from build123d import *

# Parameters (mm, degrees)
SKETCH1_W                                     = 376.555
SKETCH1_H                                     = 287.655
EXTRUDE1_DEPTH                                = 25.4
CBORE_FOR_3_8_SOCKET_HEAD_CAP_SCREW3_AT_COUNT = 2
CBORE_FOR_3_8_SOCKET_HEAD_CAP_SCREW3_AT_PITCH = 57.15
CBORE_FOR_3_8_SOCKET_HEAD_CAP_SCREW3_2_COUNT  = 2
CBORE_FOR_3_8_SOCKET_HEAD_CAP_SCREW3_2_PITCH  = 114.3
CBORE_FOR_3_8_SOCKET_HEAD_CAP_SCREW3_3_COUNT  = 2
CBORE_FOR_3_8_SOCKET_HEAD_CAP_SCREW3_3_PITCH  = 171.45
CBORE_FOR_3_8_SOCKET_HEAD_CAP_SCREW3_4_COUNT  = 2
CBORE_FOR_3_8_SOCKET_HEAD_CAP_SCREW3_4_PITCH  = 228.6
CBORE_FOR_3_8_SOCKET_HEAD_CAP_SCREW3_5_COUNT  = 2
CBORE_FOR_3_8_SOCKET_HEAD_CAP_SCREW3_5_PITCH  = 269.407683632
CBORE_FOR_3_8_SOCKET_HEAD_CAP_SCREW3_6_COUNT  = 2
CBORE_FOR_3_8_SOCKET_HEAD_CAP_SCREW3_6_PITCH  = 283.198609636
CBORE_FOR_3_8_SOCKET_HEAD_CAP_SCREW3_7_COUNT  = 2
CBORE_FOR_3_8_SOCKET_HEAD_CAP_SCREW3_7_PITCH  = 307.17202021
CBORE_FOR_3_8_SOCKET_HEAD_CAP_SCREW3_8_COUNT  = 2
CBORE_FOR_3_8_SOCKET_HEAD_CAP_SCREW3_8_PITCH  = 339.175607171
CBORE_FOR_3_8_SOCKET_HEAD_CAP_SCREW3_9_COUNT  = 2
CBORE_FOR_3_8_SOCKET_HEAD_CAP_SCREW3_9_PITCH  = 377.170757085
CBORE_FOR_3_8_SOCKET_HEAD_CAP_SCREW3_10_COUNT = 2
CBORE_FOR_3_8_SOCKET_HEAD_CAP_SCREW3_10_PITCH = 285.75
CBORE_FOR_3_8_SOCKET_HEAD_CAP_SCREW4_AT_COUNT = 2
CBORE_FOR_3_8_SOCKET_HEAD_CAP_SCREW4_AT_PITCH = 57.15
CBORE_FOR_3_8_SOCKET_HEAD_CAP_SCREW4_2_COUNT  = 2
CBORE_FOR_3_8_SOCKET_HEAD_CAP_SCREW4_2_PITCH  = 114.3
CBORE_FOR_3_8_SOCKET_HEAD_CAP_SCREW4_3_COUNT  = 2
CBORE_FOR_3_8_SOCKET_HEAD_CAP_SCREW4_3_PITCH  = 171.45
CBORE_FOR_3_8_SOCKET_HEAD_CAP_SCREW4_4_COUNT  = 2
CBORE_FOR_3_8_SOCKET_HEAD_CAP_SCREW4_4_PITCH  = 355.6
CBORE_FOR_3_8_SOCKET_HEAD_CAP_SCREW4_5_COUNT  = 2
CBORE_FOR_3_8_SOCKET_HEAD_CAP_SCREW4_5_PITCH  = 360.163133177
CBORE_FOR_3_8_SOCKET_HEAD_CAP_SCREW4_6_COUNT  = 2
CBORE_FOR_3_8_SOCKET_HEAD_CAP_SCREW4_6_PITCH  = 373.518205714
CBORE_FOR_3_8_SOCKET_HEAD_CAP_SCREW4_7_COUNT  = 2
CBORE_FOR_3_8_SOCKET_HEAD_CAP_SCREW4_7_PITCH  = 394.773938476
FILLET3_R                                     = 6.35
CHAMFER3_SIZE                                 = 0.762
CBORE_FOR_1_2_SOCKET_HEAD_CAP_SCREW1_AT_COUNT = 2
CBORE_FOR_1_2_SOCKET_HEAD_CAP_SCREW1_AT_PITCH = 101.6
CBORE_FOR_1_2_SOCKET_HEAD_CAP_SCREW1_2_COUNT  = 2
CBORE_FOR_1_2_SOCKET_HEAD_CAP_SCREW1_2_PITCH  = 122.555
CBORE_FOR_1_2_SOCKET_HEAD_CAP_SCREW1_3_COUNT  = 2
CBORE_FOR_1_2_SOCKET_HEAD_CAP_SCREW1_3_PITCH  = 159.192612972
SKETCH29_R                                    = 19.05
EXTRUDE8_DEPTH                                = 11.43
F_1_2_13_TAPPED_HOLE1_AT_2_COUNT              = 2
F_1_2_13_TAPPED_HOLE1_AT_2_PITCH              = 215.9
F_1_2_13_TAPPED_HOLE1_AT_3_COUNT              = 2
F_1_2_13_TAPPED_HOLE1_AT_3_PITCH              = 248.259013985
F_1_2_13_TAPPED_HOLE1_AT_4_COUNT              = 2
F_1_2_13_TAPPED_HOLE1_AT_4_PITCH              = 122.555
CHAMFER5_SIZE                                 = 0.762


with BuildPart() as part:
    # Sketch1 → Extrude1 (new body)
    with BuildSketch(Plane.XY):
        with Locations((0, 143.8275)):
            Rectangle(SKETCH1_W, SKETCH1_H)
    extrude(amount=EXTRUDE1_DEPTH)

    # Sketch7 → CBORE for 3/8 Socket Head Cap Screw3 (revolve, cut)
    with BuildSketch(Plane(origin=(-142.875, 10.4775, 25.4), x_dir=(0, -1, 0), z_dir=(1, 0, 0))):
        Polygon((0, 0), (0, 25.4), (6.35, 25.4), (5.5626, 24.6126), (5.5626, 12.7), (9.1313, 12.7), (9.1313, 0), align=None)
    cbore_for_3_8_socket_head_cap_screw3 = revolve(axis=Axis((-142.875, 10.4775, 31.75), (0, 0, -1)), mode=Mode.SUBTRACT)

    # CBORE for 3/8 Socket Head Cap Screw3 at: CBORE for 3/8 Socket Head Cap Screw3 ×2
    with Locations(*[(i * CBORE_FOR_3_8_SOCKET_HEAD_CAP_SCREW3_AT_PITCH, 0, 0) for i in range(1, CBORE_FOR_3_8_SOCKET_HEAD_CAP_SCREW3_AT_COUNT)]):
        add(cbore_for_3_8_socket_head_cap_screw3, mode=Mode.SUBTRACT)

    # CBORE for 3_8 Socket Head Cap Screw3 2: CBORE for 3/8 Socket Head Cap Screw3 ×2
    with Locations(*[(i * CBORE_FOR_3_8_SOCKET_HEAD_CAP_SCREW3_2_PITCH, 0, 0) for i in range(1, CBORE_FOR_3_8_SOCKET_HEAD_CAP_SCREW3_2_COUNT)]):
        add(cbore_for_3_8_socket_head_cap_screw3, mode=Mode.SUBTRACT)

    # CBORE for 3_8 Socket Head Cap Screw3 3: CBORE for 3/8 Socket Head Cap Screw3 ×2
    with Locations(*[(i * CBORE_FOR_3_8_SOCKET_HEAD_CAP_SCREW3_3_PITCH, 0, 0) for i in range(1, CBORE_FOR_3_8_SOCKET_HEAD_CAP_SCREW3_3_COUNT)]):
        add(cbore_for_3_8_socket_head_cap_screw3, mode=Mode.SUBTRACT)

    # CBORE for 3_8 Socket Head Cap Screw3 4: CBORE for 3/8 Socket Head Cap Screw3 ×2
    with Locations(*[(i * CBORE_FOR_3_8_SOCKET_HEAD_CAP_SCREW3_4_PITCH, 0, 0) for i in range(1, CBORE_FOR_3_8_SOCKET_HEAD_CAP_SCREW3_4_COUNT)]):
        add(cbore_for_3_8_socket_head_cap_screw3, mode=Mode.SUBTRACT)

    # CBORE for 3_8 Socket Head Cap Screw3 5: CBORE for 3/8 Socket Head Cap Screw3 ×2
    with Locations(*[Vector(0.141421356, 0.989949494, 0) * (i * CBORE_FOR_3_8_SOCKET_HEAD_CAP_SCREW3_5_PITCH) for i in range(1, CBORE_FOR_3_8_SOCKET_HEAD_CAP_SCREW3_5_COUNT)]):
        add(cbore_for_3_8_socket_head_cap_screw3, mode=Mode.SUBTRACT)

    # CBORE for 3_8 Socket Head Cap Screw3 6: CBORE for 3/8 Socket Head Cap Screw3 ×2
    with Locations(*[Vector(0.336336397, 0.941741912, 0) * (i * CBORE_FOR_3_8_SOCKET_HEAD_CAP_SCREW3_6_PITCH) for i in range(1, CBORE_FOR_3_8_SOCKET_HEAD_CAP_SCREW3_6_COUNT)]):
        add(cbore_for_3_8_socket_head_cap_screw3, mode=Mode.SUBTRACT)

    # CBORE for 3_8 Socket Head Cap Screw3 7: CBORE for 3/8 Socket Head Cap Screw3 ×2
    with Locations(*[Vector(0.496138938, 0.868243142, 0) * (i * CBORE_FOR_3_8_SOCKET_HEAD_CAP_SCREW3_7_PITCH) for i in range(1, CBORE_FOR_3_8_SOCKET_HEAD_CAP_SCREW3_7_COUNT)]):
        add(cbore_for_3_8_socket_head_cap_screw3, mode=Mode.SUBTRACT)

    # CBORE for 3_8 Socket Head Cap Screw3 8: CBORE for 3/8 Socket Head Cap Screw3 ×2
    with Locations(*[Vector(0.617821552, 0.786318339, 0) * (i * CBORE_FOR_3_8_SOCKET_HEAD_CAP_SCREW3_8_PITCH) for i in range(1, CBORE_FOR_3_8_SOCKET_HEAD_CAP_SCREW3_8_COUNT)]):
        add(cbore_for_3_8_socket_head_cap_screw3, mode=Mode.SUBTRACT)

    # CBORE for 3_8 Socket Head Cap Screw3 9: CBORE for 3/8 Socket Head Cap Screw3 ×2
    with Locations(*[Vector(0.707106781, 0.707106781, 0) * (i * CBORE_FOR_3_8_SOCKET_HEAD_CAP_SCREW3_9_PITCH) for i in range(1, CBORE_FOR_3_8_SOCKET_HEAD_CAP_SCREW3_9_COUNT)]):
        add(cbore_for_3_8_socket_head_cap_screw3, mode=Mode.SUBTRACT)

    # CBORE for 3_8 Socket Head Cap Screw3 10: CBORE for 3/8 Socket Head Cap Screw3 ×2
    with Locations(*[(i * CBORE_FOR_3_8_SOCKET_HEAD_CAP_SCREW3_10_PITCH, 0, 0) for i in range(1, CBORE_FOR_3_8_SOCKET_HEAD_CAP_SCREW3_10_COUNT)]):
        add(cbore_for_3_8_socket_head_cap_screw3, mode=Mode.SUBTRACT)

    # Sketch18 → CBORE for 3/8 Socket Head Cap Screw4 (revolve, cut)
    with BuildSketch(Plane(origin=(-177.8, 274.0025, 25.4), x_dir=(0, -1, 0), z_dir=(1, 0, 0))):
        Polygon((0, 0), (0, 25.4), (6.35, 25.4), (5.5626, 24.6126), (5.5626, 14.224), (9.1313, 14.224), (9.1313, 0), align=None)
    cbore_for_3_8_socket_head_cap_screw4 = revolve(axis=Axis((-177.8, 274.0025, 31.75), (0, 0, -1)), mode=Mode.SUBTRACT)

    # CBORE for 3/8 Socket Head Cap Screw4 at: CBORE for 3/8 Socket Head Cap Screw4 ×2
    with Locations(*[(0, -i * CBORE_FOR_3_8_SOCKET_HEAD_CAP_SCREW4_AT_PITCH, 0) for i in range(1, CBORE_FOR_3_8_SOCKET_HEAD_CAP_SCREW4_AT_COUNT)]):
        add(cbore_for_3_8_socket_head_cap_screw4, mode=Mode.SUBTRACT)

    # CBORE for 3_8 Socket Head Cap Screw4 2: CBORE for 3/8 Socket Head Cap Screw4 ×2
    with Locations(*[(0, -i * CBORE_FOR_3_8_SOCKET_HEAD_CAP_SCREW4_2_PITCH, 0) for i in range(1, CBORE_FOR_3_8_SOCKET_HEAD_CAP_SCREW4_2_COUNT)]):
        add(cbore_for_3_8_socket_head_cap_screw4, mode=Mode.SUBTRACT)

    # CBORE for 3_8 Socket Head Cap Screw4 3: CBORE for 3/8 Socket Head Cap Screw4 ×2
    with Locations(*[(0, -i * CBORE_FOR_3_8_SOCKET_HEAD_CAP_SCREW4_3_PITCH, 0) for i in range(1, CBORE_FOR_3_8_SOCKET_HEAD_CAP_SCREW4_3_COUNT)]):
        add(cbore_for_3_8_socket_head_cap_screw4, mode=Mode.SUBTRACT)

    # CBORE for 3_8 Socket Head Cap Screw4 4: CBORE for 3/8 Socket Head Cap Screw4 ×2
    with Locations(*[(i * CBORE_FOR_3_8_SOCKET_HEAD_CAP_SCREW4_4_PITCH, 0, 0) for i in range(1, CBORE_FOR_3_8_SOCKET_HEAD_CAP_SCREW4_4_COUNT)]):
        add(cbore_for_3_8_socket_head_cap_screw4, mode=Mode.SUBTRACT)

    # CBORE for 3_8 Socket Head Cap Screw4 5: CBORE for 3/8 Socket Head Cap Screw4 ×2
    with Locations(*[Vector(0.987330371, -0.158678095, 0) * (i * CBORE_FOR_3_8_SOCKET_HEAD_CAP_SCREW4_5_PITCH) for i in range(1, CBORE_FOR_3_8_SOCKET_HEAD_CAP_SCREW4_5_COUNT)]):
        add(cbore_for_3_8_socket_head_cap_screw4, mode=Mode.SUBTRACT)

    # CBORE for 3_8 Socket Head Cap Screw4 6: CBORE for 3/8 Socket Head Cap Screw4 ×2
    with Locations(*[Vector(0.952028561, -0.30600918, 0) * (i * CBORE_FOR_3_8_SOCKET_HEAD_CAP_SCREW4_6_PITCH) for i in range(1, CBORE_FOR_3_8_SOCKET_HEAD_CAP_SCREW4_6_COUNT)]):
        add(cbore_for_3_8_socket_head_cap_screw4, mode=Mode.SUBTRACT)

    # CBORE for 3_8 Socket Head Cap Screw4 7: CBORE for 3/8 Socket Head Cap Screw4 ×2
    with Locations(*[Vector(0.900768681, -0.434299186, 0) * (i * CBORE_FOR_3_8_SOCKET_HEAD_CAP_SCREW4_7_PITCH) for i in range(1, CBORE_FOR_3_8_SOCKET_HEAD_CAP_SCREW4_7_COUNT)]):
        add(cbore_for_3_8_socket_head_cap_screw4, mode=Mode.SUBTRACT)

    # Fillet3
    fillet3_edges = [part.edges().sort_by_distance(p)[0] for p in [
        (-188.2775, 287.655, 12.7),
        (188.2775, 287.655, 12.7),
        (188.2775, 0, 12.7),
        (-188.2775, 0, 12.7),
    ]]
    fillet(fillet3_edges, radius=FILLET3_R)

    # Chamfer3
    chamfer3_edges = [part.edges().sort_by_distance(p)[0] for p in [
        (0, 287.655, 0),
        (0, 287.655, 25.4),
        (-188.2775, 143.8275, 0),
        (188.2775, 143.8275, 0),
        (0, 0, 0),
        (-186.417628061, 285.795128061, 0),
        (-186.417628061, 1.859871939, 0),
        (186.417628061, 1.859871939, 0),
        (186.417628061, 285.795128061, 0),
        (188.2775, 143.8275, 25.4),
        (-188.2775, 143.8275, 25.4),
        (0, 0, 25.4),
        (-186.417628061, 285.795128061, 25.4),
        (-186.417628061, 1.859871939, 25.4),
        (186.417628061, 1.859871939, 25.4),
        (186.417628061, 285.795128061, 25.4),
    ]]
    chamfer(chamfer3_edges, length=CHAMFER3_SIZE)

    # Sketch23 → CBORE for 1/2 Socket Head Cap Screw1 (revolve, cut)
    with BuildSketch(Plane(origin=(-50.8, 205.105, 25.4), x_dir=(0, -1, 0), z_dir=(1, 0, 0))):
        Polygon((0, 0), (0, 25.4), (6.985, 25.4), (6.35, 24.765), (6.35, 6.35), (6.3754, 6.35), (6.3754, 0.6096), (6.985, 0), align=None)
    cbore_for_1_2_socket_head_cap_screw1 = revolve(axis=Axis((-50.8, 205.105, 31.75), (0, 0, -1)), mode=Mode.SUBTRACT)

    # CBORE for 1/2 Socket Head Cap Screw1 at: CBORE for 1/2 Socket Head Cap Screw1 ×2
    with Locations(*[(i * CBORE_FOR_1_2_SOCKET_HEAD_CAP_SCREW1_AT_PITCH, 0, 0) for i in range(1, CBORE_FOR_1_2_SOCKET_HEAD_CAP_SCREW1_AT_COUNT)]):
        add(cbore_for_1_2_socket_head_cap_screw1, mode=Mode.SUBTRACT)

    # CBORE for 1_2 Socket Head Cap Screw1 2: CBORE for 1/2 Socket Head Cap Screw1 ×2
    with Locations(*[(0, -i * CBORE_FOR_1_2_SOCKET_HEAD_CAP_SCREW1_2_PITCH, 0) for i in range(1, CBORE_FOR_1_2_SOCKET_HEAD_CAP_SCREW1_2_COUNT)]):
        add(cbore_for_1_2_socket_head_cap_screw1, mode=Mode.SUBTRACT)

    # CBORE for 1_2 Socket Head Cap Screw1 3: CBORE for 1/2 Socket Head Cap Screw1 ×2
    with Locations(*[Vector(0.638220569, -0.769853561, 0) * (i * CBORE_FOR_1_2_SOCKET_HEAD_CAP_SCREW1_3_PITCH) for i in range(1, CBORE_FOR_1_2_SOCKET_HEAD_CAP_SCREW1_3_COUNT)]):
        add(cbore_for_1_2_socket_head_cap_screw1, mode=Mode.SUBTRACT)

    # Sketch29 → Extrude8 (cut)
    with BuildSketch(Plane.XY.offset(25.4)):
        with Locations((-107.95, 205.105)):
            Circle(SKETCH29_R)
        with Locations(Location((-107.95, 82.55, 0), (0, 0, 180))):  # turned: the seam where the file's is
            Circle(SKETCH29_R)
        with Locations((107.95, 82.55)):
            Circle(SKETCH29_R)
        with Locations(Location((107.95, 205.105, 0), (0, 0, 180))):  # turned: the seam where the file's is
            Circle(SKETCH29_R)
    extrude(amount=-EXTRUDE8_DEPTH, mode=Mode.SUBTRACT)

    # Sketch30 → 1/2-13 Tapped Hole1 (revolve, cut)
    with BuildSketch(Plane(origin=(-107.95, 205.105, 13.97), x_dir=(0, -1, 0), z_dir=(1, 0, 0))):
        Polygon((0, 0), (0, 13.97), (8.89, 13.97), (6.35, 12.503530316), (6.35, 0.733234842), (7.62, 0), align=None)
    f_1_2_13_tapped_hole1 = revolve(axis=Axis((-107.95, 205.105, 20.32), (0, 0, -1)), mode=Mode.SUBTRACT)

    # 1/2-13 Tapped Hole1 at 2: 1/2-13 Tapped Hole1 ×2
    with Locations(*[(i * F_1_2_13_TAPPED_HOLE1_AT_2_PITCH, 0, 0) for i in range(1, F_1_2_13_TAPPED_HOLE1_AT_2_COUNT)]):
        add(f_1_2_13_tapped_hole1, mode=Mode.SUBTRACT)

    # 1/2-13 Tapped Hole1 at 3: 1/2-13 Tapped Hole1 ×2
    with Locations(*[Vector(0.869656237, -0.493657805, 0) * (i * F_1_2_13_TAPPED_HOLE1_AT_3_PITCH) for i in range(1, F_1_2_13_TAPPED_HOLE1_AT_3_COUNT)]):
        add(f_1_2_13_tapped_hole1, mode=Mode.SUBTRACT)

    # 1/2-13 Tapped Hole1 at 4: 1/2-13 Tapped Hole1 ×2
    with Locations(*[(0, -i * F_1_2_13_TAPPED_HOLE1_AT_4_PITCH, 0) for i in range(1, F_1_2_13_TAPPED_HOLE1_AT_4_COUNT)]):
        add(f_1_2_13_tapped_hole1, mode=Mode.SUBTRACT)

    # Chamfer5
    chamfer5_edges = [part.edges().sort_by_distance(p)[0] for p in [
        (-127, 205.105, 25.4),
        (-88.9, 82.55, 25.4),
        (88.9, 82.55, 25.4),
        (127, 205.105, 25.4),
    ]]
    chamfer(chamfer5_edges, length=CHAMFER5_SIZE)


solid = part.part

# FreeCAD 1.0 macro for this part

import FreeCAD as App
import Part
import Sketcher
from FreeCAD import Vector
Q = App.Units.Quantity


def edges_at(feature, points):
    """Names of the edges that pass closest to the given points."""
    edges = feature.Shape.Edges
    near = lambda p: min(range(len(edges)), key=lambda i: edges[i].distToShape(Part.Vertex(*p))[0])
    return sorted({f"Edge{near(p) + 1}" for p in points})

doc = App.newDocument("Part")
body = doc.addObject("PartDesign::Body", "Body")

# Sketch on XY plane
sketch1 = doc.addObject("Sketcher::SketchObject", "Sketch")
body.addObject(sketch1)
sketch1.AttachmentSupport = (doc.XY_Plane, [""])
sketch1.MapMode = "FlatFace"
sketch1.addGeometry(Part.LineSegment(Vector(-188.2775, 287.655, 0), Vector(-188.2775, 0, 0)), False)
sketch1.addGeometry(Part.LineSegment(Vector(-188.2775, 0, 0), Vector(188.2775, 0, 0)), False)
sketch1.addGeometry(Part.LineSegment(Vector(188.2775, 0, 0), Vector(188.2775, 287.655, 0)), False)
sketch1.addGeometry(Part.LineSegment(Vector(188.2775, 287.655, 0), Vector(-188.2775, 287.655, 0)), False)
sketch1.addConstraint(Sketcher.Constraint("Coincident", 0, 2, 1, 1))
sketch1.addConstraint(Sketcher.Constraint("Coincident", 1, 2, 2, 1))
sketch1.addConstraint(Sketcher.Constraint("Coincident", 2, 2, 3, 1))
sketch1.addConstraint(Sketcher.Constraint("Coincident", 3, 2, 0, 1))
sketch1.addConstraint(Sketcher.Constraint("Vertical", 0))
sketch1.addConstraint(Sketcher.Constraint("Horizontal", 1))
sketch1.addConstraint(Sketcher.Constraint("Vertical", 2))
sketch1.addConstraint(Sketcher.Constraint("Horizontal", 3))
sketch1.addConstraint(Sketcher.Constraint("Symmetric", 0, 2, 1, 2, -1, 1))
sketch1.addConstraint(Sketcher.Constraint("DistanceX", 1, 1, 1, 2, Q("14.825 in")))
sketch1.addConstraint(Sketcher.Constraint("DistanceY", 0, 2, 0, 1, Q("11.325 in")))
pad1 = doc.addObject("PartDesign::Pad", "Pad")
body.addObject(pad1)
pad1.Profile = sketch1
pad1.Length = Q("1 in")

# Sketch on YZ plane
sketch2 = doc.addObject("Sketcher::SketchObject", "Sketch001")
body.addObject(sketch2)
sketch2.AttachmentSupport = (doc.YZ_Plane, [""])
sketch2.MapMode = "FlatFace"
sketch2.AttachmentOffset = App.Placement(Vector(0, 0, -5.625 * 25.4), App.Rotation())
sketch2.addGeometry(Part.LineSegment(Vector(10.4775, 0, 0), Vector(10.4775, 25.4, 0)), False)
sketch2.addGeometry(Part.LineSegment(Vector(10.4775, 25.4, 0), Vector(1.3462, 25.4, 0)), False)
sketch2.addGeometry(Part.LineSegment(Vector(1.3462, 25.4, 0), Vector(1.3462, 12.7, 0)), False)
sketch2.addGeometry(Part.LineSegment(Vector(1.3462, 12.7, 0), Vector(4.9149, 12.7, 0)), False)
sketch2.addGeometry(Part.LineSegment(Vector(4.9149, 12.7, 0), Vector(4.9149, 0.7874, 0)), False)
sketch2.addGeometry(Part.LineSegment(Vector(4.9149, 0.7874, 0), Vector(4.1275, 0, 0)), False)
sketch2.addGeometry(Part.LineSegment(Vector(4.1275, 0, 0), Vector(10.4775, 0, 0)), False)
sketch2.addGeometry(Part.LineSegment(Vector(10.4775, 25.4, 0), Vector(10.4775, 0, 0)), True)  # axis
sketch2.addConstraint(Sketcher.Constraint("Coincident", 0, 2, 1, 1))
sketch2.addConstraint(Sketcher.Constraint("Coincident", 1, 2, 2, 1))
sketch2.addConstraint(Sketcher.Constraint("Coincident", 2, 2, 3, 1))
sketch2.addConstraint(Sketcher.Constraint("Coincident", 3, 2, 4, 1))
sketch2.addConstraint(Sketcher.Constraint("Coincident", 4, 2, 5, 1))
sketch2.addConstraint(Sketcher.Constraint("Coincident", 5, 2, 6, 1))
sketch2.addConstraint(Sketcher.Constraint("Coincident", 6, 2, 0, 1))
sketch2.addConstraint(Sketcher.Constraint("Vertical", 0))
sketch2.addConstraint(Sketcher.Constraint("Horizontal", 1))
sketch2.addConstraint(Sketcher.Constraint("Vertical", 2))
sketch2.addConstraint(Sketcher.Constraint("Horizontal", 3))
sketch2.addConstraint(Sketcher.Constraint("Vertical", 4))
sketch2.addConstraint(Sketcher.Constraint("Horizontal", 6))
sketch2.addConstraint(Sketcher.Constraint("Vertical", 7))
sketch2.addConstraint(Sketcher.Constraint("Coincident", 7, 1, 0, 2))
sketch2.addConstraint(Sketcher.Constraint("PointOnObject", 5, 2, -1))
sketch2.addConstraint(Sketcher.Constraint("PointOnObject", 7, 2, -1))
sketch2.addConstraint(Sketcher.Constraint("DistanceY", 0, 1, 0, 2, Q("1 in")))
sketch2.addConstraint(Sketcher.Constraint("DistanceY", 2, 2, 2, 1, Q("0.5 in")))
sketch2.addConstraint(Sketcher.Constraint("Angle", 5, Q("-135 deg")))
sketch2.addConstraint(Sketcher.Constraint("DistanceX", 6, 1, 6, 2, Q("0.25 in")))
sketch2.addConstraint(Sketcher.Constraint("DistanceY", 4, 2, 4, 1, Q("0.469 in")))
sketch2.addConstraint(Sketcher.Constraint("DistanceX", 1, 2, 1, 1, Q("0.3595 in")))
sketch2.addConstraint(Sketcher.Constraint("DistanceX", -1, 1, 1, 2, Q("0.053 in")))
groove = doc.addObject("PartDesign::Groove", "Groove")
body.addObject(groove)
groove.Profile = sketch2
groove.ReferenceAxis = (sketch2, ["Axis0"])
groove.Angle = 360
doc.recompute()

linearpattern = doc.addObject("PartDesign::LinearPattern", "LinearPattern")
body.addObject(linearpattern)
linearpattern.Originals = [groove]
linearpattern.Direction = (doc.X_Axis, [""])
linearpattern.Mode = "offset"
linearpattern.Offset = Q("2.25 in")
linearpattern.Occurrences = 2
body.Tip = linearpattern
doc.recompute()

linearpattern2 = doc.addObject("PartDesign::LinearPattern", "LinearPattern001")
body.addObject(linearpattern2)
linearpattern2.Originals = [groove]
linearpattern2.Direction = (doc.X_Axis, [""])
linearpattern2.Mode = "offset"
linearpattern2.Offset = Q("4.5 in")
linearpattern2.Occurrences = 2
body.Tip = linearpattern2
doc.recompute()

linearpattern3 = doc.addObject("PartDesign::LinearPattern", "LinearPattern002")
body.addObject(linearpattern3)
linearpattern3.Originals = [groove]
linearpattern3.Direction = (doc.X_Axis, [""])
linearpattern3.Mode = "offset"
linearpattern3.Offset = Q("6.75 in")
linearpattern3.Occurrences = 2
body.Tip = linearpattern3
doc.recompute()

linearpattern4 = doc.addObject("PartDesign::LinearPattern", "LinearPattern003")
body.addObject(linearpattern4)
linearpattern4.Originals = [groove]
linearpattern4.Direction = (doc.X_Axis, [""])
linearpattern4.Mode = "offset"
linearpattern4.Offset = Q("9 in")
linearpattern4.Occurrences = 2
body.Tip = linearpattern4
doc.recompute()

datumline = doc.addObject("PartDesign::Line", "DatumLine")
body.addObject(datumline)
datumline.Placement = App.Placement(Vector(0, 0, 0), App.Rotation(Vector(0, 0, 1), Vector(0.141421356, 0.989949494, 0)))
linearpattern5 = doc.addObject("PartDesign::LinearPattern", "LinearPattern004")
body.addObject(linearpattern5)
linearpattern5.Originals = [groove]
linearpattern5.Direction = (datumline, [""])
linearpattern5.Mode = "offset"
linearpattern5.Offset = 269.407684
linearpattern5.Occurrences = 2
body.Tip = linearpattern5
doc.recompute()

datumline2 = doc.addObject("PartDesign::Line", "DatumLine001")
body.addObject(datumline2)
datumline2.Placement = App.Placement(Vector(0, 0, 0), App.Rotation(Vector(0, 0, 1), Vector(0.336336397, 0.941741912, 0)))
linearpattern6 = doc.addObject("PartDesign::LinearPattern", "LinearPattern005")
body.addObject(linearpattern6)
linearpattern6.Originals = [groove]
linearpattern6.Direction = (datumline2, [""])
linearpattern6.Mode = "offset"
linearpattern6.Offset = 283.19861
linearpattern6.Occurrences = 2
body.Tip = linearpattern6
doc.recompute()

datumline3 = doc.addObject("PartDesign::Line", "DatumLine002")
body.addObject(datumline3)
datumline3.Placement = App.Placement(Vector(0, 0, 0), App.Rotation(Vector(0, 0, 1), Vector(0.496138938, 0.868243142, 0)))
linearpattern7 = doc.addObject("PartDesign::LinearPattern", "LinearPattern006")
body.addObject(linearpattern7)
linearpattern7.Originals = [groove]
linearpattern7.Direction = (datumline3, [""])
linearpattern7.Mode = "offset"
linearpattern7.Offset = 307.17202
linearpattern7.Occurrences = 2
body.Tip = linearpattern7
doc.recompute()

datumline4 = doc.addObject("PartDesign::Line", "DatumLine003")
body.addObject(datumline4)
datumline4.Placement = App.Placement(Vector(0, 0, 0), App.Rotation(Vector(0, 0, 1), Vector(0.617821552, 0.786318339, 0)))
linearpattern8 = doc.addObject("PartDesign::LinearPattern", "LinearPattern007")
body.addObject(linearpattern8)
linearpattern8.Originals = [groove]
linearpattern8.Direction = (datumline4, [""])
linearpattern8.Mode = "offset"
linearpattern8.Offset = 339.175607
linearpattern8.Occurrences = 2
body.Tip = linearpattern8
doc.recompute()

datumline5 = doc.addObject("PartDesign::Line", "DatumLine004")
body.addObject(datumline5)
datumline5.Placement = App.Placement(Vector(0, 0, 0), App.Rotation(Vector(0, 0, 1), Vector(0.707106781, 0.707106781, 0)))
linearpattern9 = doc.addObject("PartDesign::LinearPattern", "LinearPattern008")
body.addObject(linearpattern9)
linearpattern9.Originals = [groove]
linearpattern9.Direction = (datumline5, [""])
linearpattern9.Mode = "offset"
linearpattern9.Offset = 377.170757
linearpattern9.Occurrences = 2
body.Tip = linearpattern9
doc.recompute()

linearpattern10 = doc.addObject("PartDesign::LinearPattern", "LinearPattern009")
body.addObject(linearpattern10)
linearpattern10.Originals = [groove]
linearpattern10.Direction = (doc.X_Axis, [""])
linearpattern10.Mode = "offset"
linearpattern10.Offset = Q("11.25 in")
linearpattern10.Occurrences = 2
body.Tip = linearpattern10

# Sketch on YZ plane
sketch3 = doc.addObject("Sketcher::SketchObject", "Sketch002")
body.addObject(sketch3)
sketch3.AttachmentSupport = (doc.YZ_Plane, [""])
sketch3.MapMode = "FlatFace"
sketch3.AttachmentOffset = App.Placement(Vector(0, 0, -7 * 25.4), App.Rotation())
sketch3.addGeometry(Part.LineSegment(Vector(274.0025, 0, 0), Vector(274.0025, 25.4, 0)), False)
sketch3.addGeometry(Part.LineSegment(Vector(274.0025, 25.4, 0), Vector(264.8712, 25.4, 0)), False)
sketch3.addGeometry(Part.LineSegment(Vector(264.8712, 25.4, 0), Vector(264.8712, 11.176, 0)), False)
sketch3.addGeometry(Part.LineSegment(Vector(264.8712, 11.176, 0), Vector(268.4399, 11.176, 0)), False)
sketch3.addGeometry(Part.LineSegment(Vector(268.4399, 11.176, 0), Vector(268.4399, 0.7874, 0)), False)
sketch3.addGeometry(Part.LineSegment(Vector(268.4399, 0.7874, 0), Vector(267.6525, 0, 0)), False)
sketch3.addGeometry(Part.LineSegment(Vector(267.6525, 0, 0), Vector(274.0025, 0, 0)), False)
sketch3.addGeometry(Part.LineSegment(Vector(274.0025, 25.4, 0), Vector(274.0025, 0, 0)), True)  # axis
sketch3.addConstraint(Sketcher.Constraint("Coincident", 0, 2, 1, 1))
sketch3.addConstraint(Sketcher.Constraint("Coincident", 1, 2, 2, 1))
sketch3.addConstraint(Sketcher.Constraint("Coincident", 2, 2, 3, 1))
sketch3.addConstraint(Sketcher.Constraint("Coincident", 3, 2, 4, 1))
sketch3.addConstraint(Sketcher.Constraint("Coincident", 4, 2, 5, 1))
sketch3.addConstraint(Sketcher.Constraint("Coincident", 5, 2, 6, 1))
sketch3.addConstraint(Sketcher.Constraint("Coincident", 6, 2, 0, 1))
sketch3.addConstraint(Sketcher.Constraint("Vertical", 0))
sketch3.addConstraint(Sketcher.Constraint("Horizontal", 1))
sketch3.addConstraint(Sketcher.Constraint("Vertical", 2))
sketch3.addConstraint(Sketcher.Constraint("Horizontal", 3))
sketch3.addConstraint(Sketcher.Constraint("Vertical", 4))
sketch3.addConstraint(Sketcher.Constraint("Horizontal", 6))
sketch3.addConstraint(Sketcher.Constraint("Vertical", 7))
sketch3.addConstraint(Sketcher.Constraint("Coincident", 7, 1, 0, 2))
sketch3.addConstraint(Sketcher.Constraint("PointOnObject", 5, 2, -1))
sketch3.addConstraint(Sketcher.Constraint("PointOnObject", 7, 2, -1))
sketch3.addConstraint(Sketcher.Constraint("DistanceY", 0, 1, 0, 2, Q("1 in")))
sketch3.addConstraint(Sketcher.Constraint("Angle", 5, Q("-135 deg")))
sketch3.addConstraint(Sketcher.Constraint("DistanceX", 6, 1, 6, 2, Q("0.25 in")))
sketch3.addConstraint(Sketcher.Constraint("DistanceY", 2, 2, 2, 1, Q("0.56 in")))
sketch3.addConstraint(Sketcher.Constraint("DistanceY", 4, 2, 4, 1, Q("0.409 in")))
sketch3.addConstraint(Sketcher.Constraint("DistanceX", 1, 2, 1, 1, Q("0.3595 in")))
sketch3.addConstraint(Sketcher.Constraint("DistanceX", -1, 1, 1, 2, Q("10.428 in")))
groove2 = doc.addObject("PartDesign::Groove", "Groove001")
body.addObject(groove2)
groove2.Profile = sketch3
groove2.ReferenceAxis = (sketch3, ["Axis0"])
groove2.Angle = 360
doc.recompute()

linearpattern11 = doc.addObject("PartDesign::LinearPattern", "LinearPattern010")
body.addObject(linearpattern11)
linearpattern11.Originals = [groove2]
linearpattern11.Direction = (doc.Y_Axis, [""])
linearpattern11.Mode = "offset"
linearpattern11.Offset = Q("2.25 in")
linearpattern11.Occurrences = 2
linearpattern11.Reversed = True
body.Tip = linearpattern11
doc.recompute()

linearpattern12 = doc.addObject("PartDesign::LinearPattern", "LinearPattern011")
body.addObject(linearpattern12)
linearpattern12.Originals = [groove2]
linearpattern12.Direction = (doc.Y_Axis, [""])
linearpattern12.Mode = "offset"
linearpattern12.Offset = Q("4.5 in")
linearpattern12.Occurrences = 2
linearpattern12.Reversed = True
body.Tip = linearpattern12
doc.recompute()

linearpattern13 = doc.addObject("PartDesign::LinearPattern", "LinearPattern012")
body.addObject(linearpattern13)
linearpattern13.Originals = [groove2]
linearpattern13.Direction = (doc.Y_Axis, [""])
linearpattern13.Mode = "offset"
linearpattern13.Offset = Q("6.75 in")
linearpattern13.Occurrences = 2
linearpattern13.Reversed = True
body.Tip = linearpattern13
doc.recompute()

linearpattern14 = doc.addObject("PartDesign::LinearPattern", "LinearPattern013")
body.addObject(linearpattern14)
linearpattern14.Originals = [groove2]
linearpattern14.Direction = (doc.X_Axis, [""])
linearpattern14.Mode = "offset"
linearpattern14.Offset = Q("14 in")
linearpattern14.Occurrences = 2
body.Tip = linearpattern14
doc.recompute()

datumline6 = doc.addObject("PartDesign::Line", "DatumLine005")
body.addObject(datumline6)
datumline6.Placement = App.Placement(Vector(0, 0, 0), App.Rotation(Vector(0, 0, 1), Vector(0.987330371, -0.158678095, 0)))
linearpattern15 = doc.addObject("PartDesign::LinearPattern", "LinearPattern014")
body.addObject(linearpattern15)
linearpattern15.Originals = [groove2]
linearpattern15.Direction = (datumline6, [""])
linearpattern15.Mode = "offset"
linearpattern15.Offset = 360.163133
linearpattern15.Occurrences = 2
body.Tip = linearpattern15
doc.recompute()

datumline7 = doc.addObject("PartDesign::Line", "DatumLine006")
body.addObject(datumline7)
datumline7.Placement = App.Placement(Vector(0, 0, 0), App.Rotation(Vector(0, 0, 1), Vector(0.952028561, -0.30600918, 0)))
linearpattern16 = doc.addObject("PartDesign::LinearPattern", "LinearPattern015")
body.addObject(linearpattern16)
linearpattern16.Originals = [groove2]
linearpattern16.Direction = (datumline7, [""])
linearpattern16.Mode = "offset"
linearpattern16.Offset = 373.518206
linearpattern16.Occurrences = 2
body.Tip = linearpattern16
doc.recompute()

datumline8 = doc.addObject("PartDesign::Line", "DatumLine007")
body.addObject(datumline8)
datumline8.Placement = App.Placement(Vector(0, 0, 0), App.Rotation(Vector(0, 0, 1), Vector(0.900768681, -0.434299186, 0)))
linearpattern17 = doc.addObject("PartDesign::LinearPattern", "LinearPattern016")
body.addObject(linearpattern17)
linearpattern17.Originals = [groove2]
linearpattern17.Direction = (datumline8, [""])
linearpattern17.Mode = "offset"
linearpattern17.Offset = 394.773938
linearpattern17.Occurrences = 2
body.Tip = linearpattern17
doc.recompute()

fillet = doc.addObject("PartDesign::Fillet", "Fillet")
body.addObject(fillet)
fillet.Base = (linearpattern17, edges_at(linearpattern17, [
    (-188.278, 287.655, 12.7),
    (188.278, 287.655, 12.7),
    (188.278, 0, 12.7),
    (-188.278, 0, 12.7),
]))
fillet.Radius = Q("0.25 in")
doc.recompute()

chamfer = doc.addObject("PartDesign::Chamfer", "Chamfer")
body.addObject(chamfer)
chamfer.Base = (fillet, edges_at(fillet, [
    (0, 287.655, 0),
    (0, 287.655, 25.4),
    (-188.278, 143.827, 0),
    (188.278, 143.827, 0),
    (0, 0, 0),
    (-186.418, 285.795, 0),
    (-186.418, 1.86, 0),
    (186.418, 1.86, 0),
    (186.418, 285.795, 0),
    (188.278, 143.827, 25.4),
    (-188.278, 143.827, 25.4),
    (0, 0, 25.4),
    (-186.418, 285.795, 25.4),
    (-186.418, 1.86, 25.4),
    (186.418, 1.86, 25.4),
    (186.418, 285.795, 25.4),
]))
chamfer.Size = Q("0.03 in")

# Sketch on YZ plane
sketch4 = doc.addObject("Sketcher::SketchObject", "Sketch003")
body.addObject(sketch4)
sketch4.AttachmentSupport = (doc.YZ_Plane, [""])
sketch4.MapMode = "FlatFace"
sketch4.AttachmentOffset = App.Placement(Vector(0, 0, -2 * 25.4), App.Rotation())
sketch4.addGeometry(Part.LineSegment(Vector(205.105, 0, 0), Vector(205.105, 25.4, 0)), False)
sketch4.addGeometry(Part.LineSegment(Vector(205.105, 25.4, 0), Vector(198.12, 25.4, 0)), False)
sketch4.addGeometry(Part.LineSegment(Vector(198.12, 25.4, 0), Vector(198.7296, 24.7904, 0)), False)
sketch4.addGeometry(Part.LineSegment(Vector(198.7296, 24.7904, 0), Vector(198.7296, 19.05, 0)), False)
sketch4.addGeometry(Part.LineSegment(Vector(198.7296, 19.05, 0), Vector(198.755, 19.05, 0)), False)
sketch4.addGeometry(Part.LineSegment(Vector(198.755, 19.05, 0), Vector(198.755, 0.635, 0)), False)
sketch4.addGeometry(Part.LineSegment(Vector(198.755, 0.635, 0), Vector(198.12, 0, 0)), False)
sketch4.addGeometry(Part.LineSegment(Vector(198.12, 0, 0), Vector(205.105, 0, 0)), False)
sketch4.addGeometry(Part.LineSegment(Vector(205.105, 25.4, 0), Vector(205.105, 0, 0)), True)  # axis
sketch4.addConstraint(Sketcher.Constraint("Coincident", 0, 2, 1, 1))
sketch4.addConstraint(Sketcher.Constraint("Coincident", 1, 2, 2, 1))
sketch4.addConstraint(Sketcher.Constraint("Coincident", 2, 2, 3, 1))
sketch4.addConstraint(Sketcher.Constraint("Coincident", 3, 2, 4, 1))
sketch4.addConstraint(Sketcher.Constraint("Coincident", 4, 2, 5, 1))
sketch4.addConstraint(Sketcher.Constraint("Coincident", 5, 2, 6, 1))
sketch4.addConstraint(Sketcher.Constraint("Coincident", 6, 2, 7, 1))
sketch4.addConstraint(Sketcher.Constraint("Coincident", 7, 2, 0, 1))
sketch4.addConstraint(Sketcher.Constraint("Vertical", 0))
sketch4.addConstraint(Sketcher.Constraint("Horizontal", 1))
sketch4.addConstraint(Sketcher.Constraint("Vertical", 3))
sketch4.addConstraint(Sketcher.Constraint("Horizontal", 4))
sketch4.addConstraint(Sketcher.Constraint("Vertical", 5))
sketch4.addConstraint(Sketcher.Constraint("Horizontal", 7))
sketch4.addConstraint(Sketcher.Constraint("Vertical", 8))
sketch4.addConstraint(Sketcher.Constraint("Coincident", 8, 1, 0, 2))
sketch4.addConstraint(Sketcher.Constraint("PointOnObject", 6, 2, -1))
sketch4.addConstraint(Sketcher.Constraint("PointOnObject", 8, 2, -1))
sketch4.addConstraint(Sketcher.Constraint("Perpendicular", 2, 6))
sketch4.addConstraint(Sketcher.Constraint("Vertical", 1, 2, 6, 2))
sketch4.addConstraint(Sketcher.Constraint("DistanceY", 0, 1, 0, 2, Q("1 in")))
sketch4.addConstraint(Sketcher.Constraint("Angle", 2, Q("-45 deg")))
sketch4.addConstraint(Sketcher.Constraint("DistanceX", -1, 1, 1, 2, Q("7.8 in")))
sketch4.addConstraint(Sketcher.Constraint("DistanceX", 1, 2, 1, 1, Q("0.275 in")))
sketch4.addConstraint(Sketcher.Constraint("DistanceX", 4, 1, 4, 2, Q("0.001 in")))
sketch4.addConstraint(Sketcher.Constraint("DistanceY", 3, 2, 3, 1, Q("0.226 in")))
sketch4.addConstraint(Sketcher.Constraint("DistanceY", 5, 2, 5, 1, Q("0.725 in")))
groove3 = doc.addObject("PartDesign::Groove", "Groove002")
body.addObject(groove3)
groove3.Profile = sketch4
groove3.ReferenceAxis = (sketch4, ["Axis0"])
groove3.Angle = 360
doc.recompute()

linearpattern18 = doc.addObject("PartDesign::LinearPattern", "LinearPattern017")
body.addObject(linearpattern18)
linearpattern18.Originals = [groove3]
linearpattern18.Direction = (doc.X_Axis, [""])
linearpattern18.Mode = "offset"
linearpattern18.Offset = Q("4 in")
linearpattern18.Occurrences = 2
body.Tip = linearpattern18
doc.recompute()

linearpattern19 = doc.addObject("PartDesign::LinearPattern", "LinearPattern018")
body.addObject(linearpattern19)
linearpattern19.Originals = [groove3]
linearpattern19.Direction = (doc.Y_Axis, [""])
linearpattern19.Mode = "offset"
linearpattern19.Offset = Q("4.825 in")
linearpattern19.Occurrences = 2
linearpattern19.Reversed = True
body.Tip = linearpattern19
doc.recompute()

datumline9 = doc.addObject("PartDesign::Line", "DatumLine008")
body.addObject(datumline9)
datumline9.Placement = App.Placement(Vector(0, 0, 0), App.Rotation(Vector(0, 0, 1), Vector(0.638220569, -0.769853561, 0)))
linearpattern20 = doc.addObject("PartDesign::LinearPattern", "LinearPattern019")
body.addObject(linearpattern20)
linearpattern20.Originals = [groove3]
linearpattern20.Direction = (datumline9, [""])
linearpattern20.Mode = "offset"
linearpattern20.Offset = 159.192613
linearpattern20.Occurrences = 2
body.Tip = linearpattern20

# Sketch on XY plane
sketch5 = doc.addObject("Sketcher::SketchObject", "Sketch004")
body.addObject(sketch5)
sketch5.AttachmentSupport = (doc.XY_Plane, [""])
sketch5.MapMode = "FlatFace"
sketch5.AttachmentOffset = App.Placement(Vector(0, 0, 1 * 25.4), App.Rotation())
sketch5.addGeometry(Part.Circle(Vector(-107.95, 205.105, 0), Vector(0, 0, 1), 19.05), False)
sketch5.addGeometry(Part.Circle(Vector(-107.95, 82.55, 0), Vector(0, 0, 1), 19.05), False)
sketch5.addGeometry(Part.Circle(Vector(107.95, 82.55, 0), Vector(0, 0, 1), 19.05), False)
sketch5.addGeometry(Part.Circle(Vector(107.95, 205.105, 0), Vector(0, 0, 1), 19.05), False)
sketch5.addConstraint(Sketcher.Constraint("Equal", 0, 1))
sketch5.addConstraint(Sketcher.Constraint("Equal", 1, 2))
sketch5.addConstraint(Sketcher.Constraint("Equal", 2, 3))
sketch5.addConstraint(Sketcher.Constraint("Symmetric", 1, 3, 2, 3, -2))
sketch5.addConstraint(Sketcher.Constraint("Symmetric", 0, 3, 3, 3, -2))
sketch5.addConstraint(Sketcher.Constraint("Vertical", 0, 3, 1, 3))
sketch5.addConstraint(Sketcher.Constraint("Diameter", 0, Q("1.5 in")))
sketch5.addConstraint(Sketcher.Constraint("DistanceX", 1, 3, 2, 3, Q("8.5 in")))
sketch5.addConstraint(Sketcher.Constraint("DistanceY", -1, 1, 1, 3, Q("3.25 in")))
sketch5.addConstraint(Sketcher.Constraint("DistanceY", -1, 1, 0, 3, Q("8.075 in")))
pocket1 = doc.addObject("PartDesign::Pocket", "Pocket")
body.addObject(pocket1)
pocket1.Profile = sketch5
pocket1.Length = Q("0.45 in")

# Sketch on YZ plane
sketch6 = doc.addObject("Sketcher::SketchObject", "Sketch005")
body.addObject(sketch6)
sketch6.AttachmentSupport = (doc.YZ_Plane, [""])
sketch6.MapMode = "FlatFace"
sketch6.AttachmentOffset = App.Placement(Vector(0, 0, -4.25 * 25.4), App.Rotation())
sketch6.addGeometry(Part.LineSegment(Vector(205.105, 0, 0), Vector(205.105, 13.97, 0)), False)
sketch6.addGeometry(Part.LineSegment(Vector(205.105, 13.97, 0), Vector(197.485, 13.97, 0)), False)
sketch6.addGeometry(Part.LineSegment(Vector(197.485, 13.97, 0), Vector(198.755, 13.236765, 0)), False)
sketch6.addGeometry(Part.LineSegment(Vector(198.755, 13.236765, 0), Vector(198.755, 1.46647, 0)), False)
sketch6.addGeometry(Part.LineSegment(Vector(198.755, 1.46647, 0), Vector(196.215, 0, 0)), False)
sketch6.addGeometry(Part.LineSegment(Vector(196.215, 0, 0), Vector(205.105, 0, 0)), False)
sketch6.addGeometry(Part.LineSegment(Vector(205.105, 13.97, 0), Vector(205.105, 0, 0)), True)  # axis
sketch6.addConstraint(Sketcher.Constraint("Coincident", 0, 2, 1, 1))
sketch6.addConstraint(Sketcher.Constraint("Coincident", 1, 2, 2, 1))
sketch6.addConstraint(Sketcher.Constraint("Coincident", 2, 2, 3, 1))
sketch6.addConstraint(Sketcher.Constraint("Coincident", 3, 2, 4, 1))
sketch6.addConstraint(Sketcher.Constraint("Coincident", 4, 2, 5, 1))
sketch6.addConstraint(Sketcher.Constraint("Coincident", 5, 2, 0, 1))
sketch6.addConstraint(Sketcher.Constraint("Vertical", 0))
sketch6.addConstraint(Sketcher.Constraint("Horizontal", 1))
sketch6.addConstraint(Sketcher.Constraint("Vertical", 3))
sketch6.addConstraint(Sketcher.Constraint("Horizontal", 5))
sketch6.addConstraint(Sketcher.Constraint("Vertical", 6))
sketch6.addConstraint(Sketcher.Constraint("Coincident", 6, 1, 0, 2))
sketch6.addConstraint(Sketcher.Constraint("PointOnObject", 4, 2, -1))
sketch6.addConstraint(Sketcher.Constraint("PointOnObject", 6, 2, -1))
sketch6.addConstraint(Sketcher.Constraint("DistanceX", 1, 2, 1, 1, Q("0.3 in")))
sketch6.addConstraint(Sketcher.Constraint("Angle", 2, Q("-30 deg")))
sketch6.addConstraint(Sketcher.Constraint("Angle", 4, Q("-150 deg")))
sketch6.addConstraint(Sketcher.Constraint("DistanceX", 5, 1, 5, 2, Q("0.35 in")))
sketch6.addConstraint(Sketcher.Constraint("DistanceY", 0, 1, 0, 2, Q("0.55 in")))
sketch6.addConstraint(Sketcher.Constraint("DistanceX", 4, 2, 3, 2, Q("0.1 in")))
sketch6.addConstraint(Sketcher.Constraint("DistanceX", -1, 1, 0, 2, Q("8.075 in")))
groove4 = doc.addObject("PartDesign::Groove", "Groove003")
body.addObject(groove4)
groove4.Profile = sketch6
groove4.ReferenceAxis = (sketch6, ["Axis0"])
groove4.Angle = 360
doc.recompute()

linearpattern21 = doc.addObject("PartDesign::LinearPattern", "LinearPattern020")
body.addObject(linearpattern21)
linearpattern21.Originals = [groove4]
linearpattern21.Direction = (doc.X_Axis, [""])
linearpattern21.Mode = "offset"
linearpattern21.Offset = Q("8.5 in")
linearpattern21.Occurrences = 2
body.Tip = linearpattern21
doc.recompute()

datumline10 = doc.addObject("PartDesign::Line", "DatumLine009")
body.addObject(datumline10)
datumline10.Placement = App.Placement(Vector(0, 0, 0), App.Rotation(Vector(0, 0, 1), Vector(0.869656237, -0.493657805, 0)))
linearpattern22 = doc.addObject("PartDesign::LinearPattern", "LinearPattern021")
body.addObject(linearpattern22)
linearpattern22.Originals = [groove4]
linearpattern22.Direction = (datumline10, [""])
linearpattern22.Mode = "offset"
linearpattern22.Offset = 248.259014
linearpattern22.Occurrences = 2
body.Tip = linearpattern22
doc.recompute()

linearpattern23 = doc.addObject("PartDesign::LinearPattern", "LinearPattern022")
body.addObject(linearpattern23)
linearpattern23.Originals = [groove4]
linearpattern23.Direction = (doc.Y_Axis, [""])
linearpattern23.Mode = "offset"
linearpattern23.Offset = Q("4.825 in")
linearpattern23.Occurrences = 2
linearpattern23.Reversed = True
body.Tip = linearpattern23
doc.recompute()

chamfer2 = doc.addObject("PartDesign::Chamfer", "Chamfer001")
body.addObject(chamfer2)
chamfer2.Base = (linearpattern23, edges_at(linearpattern23, [
    (-127, 205.105, 25.4),
    (-88.9, 82.55, 25.4),
    (88.9, 82.55, 25.4),
    (127, 205.105, 25.4),
]))
chamfer2.Size = Q("0.03 in")

doc.recompute()
